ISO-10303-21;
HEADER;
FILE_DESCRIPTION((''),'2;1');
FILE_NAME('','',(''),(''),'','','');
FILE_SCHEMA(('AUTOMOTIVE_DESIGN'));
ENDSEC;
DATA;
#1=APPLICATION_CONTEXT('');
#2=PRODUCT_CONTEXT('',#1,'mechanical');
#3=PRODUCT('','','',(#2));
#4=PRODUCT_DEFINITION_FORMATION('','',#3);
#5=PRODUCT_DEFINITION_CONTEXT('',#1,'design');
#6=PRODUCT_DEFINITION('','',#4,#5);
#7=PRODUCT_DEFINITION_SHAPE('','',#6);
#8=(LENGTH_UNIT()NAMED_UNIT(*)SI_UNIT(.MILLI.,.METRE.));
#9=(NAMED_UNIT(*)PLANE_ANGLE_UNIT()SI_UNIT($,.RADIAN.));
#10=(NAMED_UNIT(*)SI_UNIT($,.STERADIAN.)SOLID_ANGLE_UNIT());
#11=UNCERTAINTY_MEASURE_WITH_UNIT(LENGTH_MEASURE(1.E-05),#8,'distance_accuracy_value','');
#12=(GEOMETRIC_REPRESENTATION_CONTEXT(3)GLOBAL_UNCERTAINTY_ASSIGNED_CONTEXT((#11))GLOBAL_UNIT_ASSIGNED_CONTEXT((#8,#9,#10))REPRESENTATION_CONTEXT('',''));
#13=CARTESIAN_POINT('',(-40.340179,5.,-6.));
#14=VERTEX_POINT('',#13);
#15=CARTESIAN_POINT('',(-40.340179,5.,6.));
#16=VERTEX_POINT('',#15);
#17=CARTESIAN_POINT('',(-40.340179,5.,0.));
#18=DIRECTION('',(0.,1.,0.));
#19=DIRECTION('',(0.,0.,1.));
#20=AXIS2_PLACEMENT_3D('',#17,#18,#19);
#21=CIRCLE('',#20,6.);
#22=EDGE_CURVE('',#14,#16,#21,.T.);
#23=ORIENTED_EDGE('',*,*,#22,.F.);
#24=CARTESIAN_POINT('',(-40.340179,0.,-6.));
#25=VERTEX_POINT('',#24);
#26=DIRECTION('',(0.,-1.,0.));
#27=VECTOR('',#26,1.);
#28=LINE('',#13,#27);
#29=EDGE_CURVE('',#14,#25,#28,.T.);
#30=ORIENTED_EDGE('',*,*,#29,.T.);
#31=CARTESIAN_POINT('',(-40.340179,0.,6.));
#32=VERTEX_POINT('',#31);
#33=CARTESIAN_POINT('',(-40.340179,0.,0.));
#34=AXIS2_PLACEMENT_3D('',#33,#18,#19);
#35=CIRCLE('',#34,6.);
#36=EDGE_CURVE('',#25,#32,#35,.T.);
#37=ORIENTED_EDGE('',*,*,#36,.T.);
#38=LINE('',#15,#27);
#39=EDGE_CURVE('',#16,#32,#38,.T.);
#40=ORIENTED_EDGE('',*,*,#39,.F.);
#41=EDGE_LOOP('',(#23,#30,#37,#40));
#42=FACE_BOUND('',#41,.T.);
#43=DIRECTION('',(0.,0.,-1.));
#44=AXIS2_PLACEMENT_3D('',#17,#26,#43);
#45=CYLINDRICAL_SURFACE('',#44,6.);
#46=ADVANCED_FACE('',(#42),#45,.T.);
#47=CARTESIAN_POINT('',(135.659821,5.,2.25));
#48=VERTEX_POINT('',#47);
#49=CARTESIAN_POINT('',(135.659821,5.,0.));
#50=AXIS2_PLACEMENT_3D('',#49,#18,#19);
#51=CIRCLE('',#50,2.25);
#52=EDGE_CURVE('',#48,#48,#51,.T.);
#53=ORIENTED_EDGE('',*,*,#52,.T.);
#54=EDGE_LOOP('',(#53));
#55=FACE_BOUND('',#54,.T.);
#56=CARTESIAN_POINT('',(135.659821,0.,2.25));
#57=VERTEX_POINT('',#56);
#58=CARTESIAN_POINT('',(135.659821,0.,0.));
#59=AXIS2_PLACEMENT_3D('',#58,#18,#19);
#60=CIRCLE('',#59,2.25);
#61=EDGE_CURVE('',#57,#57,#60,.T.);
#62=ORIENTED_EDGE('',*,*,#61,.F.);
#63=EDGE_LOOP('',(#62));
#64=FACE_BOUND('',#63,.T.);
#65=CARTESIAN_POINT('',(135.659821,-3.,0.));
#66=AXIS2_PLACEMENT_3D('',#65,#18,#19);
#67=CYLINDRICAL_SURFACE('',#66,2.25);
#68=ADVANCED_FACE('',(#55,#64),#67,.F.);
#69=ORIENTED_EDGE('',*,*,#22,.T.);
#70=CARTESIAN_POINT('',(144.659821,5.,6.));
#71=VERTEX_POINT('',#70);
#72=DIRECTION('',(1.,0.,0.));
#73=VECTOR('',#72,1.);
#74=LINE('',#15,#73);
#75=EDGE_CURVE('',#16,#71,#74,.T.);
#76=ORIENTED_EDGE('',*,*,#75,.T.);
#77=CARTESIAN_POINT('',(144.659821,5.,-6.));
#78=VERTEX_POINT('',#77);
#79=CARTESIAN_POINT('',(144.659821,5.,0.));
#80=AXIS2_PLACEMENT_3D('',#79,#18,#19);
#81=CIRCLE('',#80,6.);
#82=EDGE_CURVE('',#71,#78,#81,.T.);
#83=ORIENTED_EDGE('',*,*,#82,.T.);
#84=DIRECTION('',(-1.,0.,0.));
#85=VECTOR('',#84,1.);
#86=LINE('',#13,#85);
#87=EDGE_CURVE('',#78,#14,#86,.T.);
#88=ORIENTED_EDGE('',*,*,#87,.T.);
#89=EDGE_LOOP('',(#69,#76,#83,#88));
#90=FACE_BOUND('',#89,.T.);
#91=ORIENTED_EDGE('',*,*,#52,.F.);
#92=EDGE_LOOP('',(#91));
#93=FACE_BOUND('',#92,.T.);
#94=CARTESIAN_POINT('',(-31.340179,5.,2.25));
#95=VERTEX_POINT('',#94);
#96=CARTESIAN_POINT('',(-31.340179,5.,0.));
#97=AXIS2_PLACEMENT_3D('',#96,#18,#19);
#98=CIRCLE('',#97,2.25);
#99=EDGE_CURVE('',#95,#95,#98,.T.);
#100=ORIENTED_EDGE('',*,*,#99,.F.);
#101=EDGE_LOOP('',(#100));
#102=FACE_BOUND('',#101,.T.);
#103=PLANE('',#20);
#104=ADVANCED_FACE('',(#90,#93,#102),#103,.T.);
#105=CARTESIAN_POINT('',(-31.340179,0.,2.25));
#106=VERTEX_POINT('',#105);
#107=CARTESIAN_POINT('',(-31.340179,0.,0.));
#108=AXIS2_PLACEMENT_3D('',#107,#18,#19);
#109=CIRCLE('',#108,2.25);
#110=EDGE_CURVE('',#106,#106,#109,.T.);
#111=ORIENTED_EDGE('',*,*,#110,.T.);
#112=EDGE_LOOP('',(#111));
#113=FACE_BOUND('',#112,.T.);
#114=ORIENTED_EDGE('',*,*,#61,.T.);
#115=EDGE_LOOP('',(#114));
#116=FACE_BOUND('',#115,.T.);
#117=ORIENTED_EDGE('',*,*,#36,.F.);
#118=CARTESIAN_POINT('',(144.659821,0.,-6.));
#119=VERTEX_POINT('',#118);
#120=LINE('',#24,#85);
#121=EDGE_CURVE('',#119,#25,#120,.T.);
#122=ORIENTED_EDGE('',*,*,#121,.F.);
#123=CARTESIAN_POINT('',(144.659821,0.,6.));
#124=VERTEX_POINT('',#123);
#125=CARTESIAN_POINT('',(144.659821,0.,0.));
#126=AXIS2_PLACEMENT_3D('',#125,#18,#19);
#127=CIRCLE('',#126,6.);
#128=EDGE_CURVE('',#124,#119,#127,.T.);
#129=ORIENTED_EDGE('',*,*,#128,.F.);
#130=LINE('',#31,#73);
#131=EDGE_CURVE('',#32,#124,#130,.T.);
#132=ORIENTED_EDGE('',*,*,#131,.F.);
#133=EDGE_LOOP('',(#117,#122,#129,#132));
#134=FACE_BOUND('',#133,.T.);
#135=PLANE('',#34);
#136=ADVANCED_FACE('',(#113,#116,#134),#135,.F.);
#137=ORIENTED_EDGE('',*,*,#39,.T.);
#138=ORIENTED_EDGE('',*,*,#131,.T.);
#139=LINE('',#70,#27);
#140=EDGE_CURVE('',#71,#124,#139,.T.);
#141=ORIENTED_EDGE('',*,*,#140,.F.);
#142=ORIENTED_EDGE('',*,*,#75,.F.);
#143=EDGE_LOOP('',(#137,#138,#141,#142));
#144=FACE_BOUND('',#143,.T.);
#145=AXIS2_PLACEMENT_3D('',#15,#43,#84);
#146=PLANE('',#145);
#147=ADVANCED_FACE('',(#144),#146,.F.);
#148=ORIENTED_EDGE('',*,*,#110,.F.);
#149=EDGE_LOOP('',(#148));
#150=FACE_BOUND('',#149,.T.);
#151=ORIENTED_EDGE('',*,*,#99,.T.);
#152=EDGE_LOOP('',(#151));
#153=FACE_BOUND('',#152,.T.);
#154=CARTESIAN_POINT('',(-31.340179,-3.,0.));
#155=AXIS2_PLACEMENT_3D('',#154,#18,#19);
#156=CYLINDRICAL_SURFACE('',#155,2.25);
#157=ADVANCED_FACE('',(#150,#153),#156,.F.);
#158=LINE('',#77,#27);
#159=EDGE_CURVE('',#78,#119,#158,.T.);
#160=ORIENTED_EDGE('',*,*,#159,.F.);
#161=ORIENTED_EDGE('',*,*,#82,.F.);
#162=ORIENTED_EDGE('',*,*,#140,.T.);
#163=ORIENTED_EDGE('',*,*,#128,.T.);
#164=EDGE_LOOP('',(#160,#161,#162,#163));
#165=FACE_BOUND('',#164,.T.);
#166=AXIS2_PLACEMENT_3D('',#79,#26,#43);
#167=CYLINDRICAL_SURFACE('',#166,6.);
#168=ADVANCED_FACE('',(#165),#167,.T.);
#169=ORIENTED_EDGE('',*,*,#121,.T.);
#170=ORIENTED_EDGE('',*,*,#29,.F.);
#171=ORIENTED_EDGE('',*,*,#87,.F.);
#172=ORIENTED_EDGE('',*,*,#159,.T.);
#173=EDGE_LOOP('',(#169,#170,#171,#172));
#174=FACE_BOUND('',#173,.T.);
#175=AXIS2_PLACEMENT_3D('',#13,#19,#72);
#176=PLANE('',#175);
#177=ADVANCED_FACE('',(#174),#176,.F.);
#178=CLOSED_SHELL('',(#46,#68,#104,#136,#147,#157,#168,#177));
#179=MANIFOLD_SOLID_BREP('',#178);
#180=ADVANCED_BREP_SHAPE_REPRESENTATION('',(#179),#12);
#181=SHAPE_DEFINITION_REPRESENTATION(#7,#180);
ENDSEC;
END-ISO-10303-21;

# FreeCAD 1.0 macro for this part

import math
import FreeCAD as App
import Part
import Sketcher

V = App.Vector
Q = App.Units.Quantity

doc = App.newDocument("Part")
params = doc.addObject("Spreadsheet::Sheet", "Params")
for row, (alias, value) in enumerate([
    ("sketch1_radius", "6 mm"),
    ("sketch1_width", "185 mm"),
    ("pad1_length", "5 mm"),
    ("sketch2_diameter", "4.5 mm"),
    ("pocket1_length", "8 mm"),
], start=1):
    params.set(f"A{row}", alias)
    params.set(f"B{row}", "=" + value)
    params.setAlias(f"B{row}", alias)

body = doc.addObject("PartDesign::Body", "Body")

# Sketch on XZ plane
sketch1 = body.newObject("Sketcher::SketchObject", "Sketch")
sketch1.AttachmentSupport = (doc.getObject("XZ_Plane"), [""])
sketch1.MapMode = "FlatFace"
sketch1.addGeometry([
    Part.LineSegment(V(145, -6, 0), V(-40, -6, 0)),
    Part.ArcOfCircle(Part.Circle(V(-40, 0, 0), V(0, 0, 1), 6), math.radians(90), math.radians(270)),
    Part.LineSegment(V(-40, 6, 0), V(145, 6, 0)),
    Part.ArcOfCircle(Part.Circle(V(145, 0, 0), V(0, 0, 1), 6), math.radians(-90), math.radians(90)),
], False)
sketch1.addConstraint([
    Sketcher.Constraint("Tangent", 0, 2, 1, 2),
    Sketcher.Constraint("Tangent", 1, 1, 2, 1),
    Sketcher.Constraint("Tangent", 2, 2, 3, 2),
    Sketcher.Constraint("Tangent", 3, 1, 0, 1),
    Sketcher.Constraint("Horizontal", 0),
    Sketcher.Constraint("Horizontal", 2),
    Sketcher.Constraint("PointOnObject", 1, 3, -1),
    Sketcher.Constraint("Radius", 1, Q("6 mm")),
    Sketcher.Constraint("DistanceX", 0, 2, 0, 1, Q("185 mm")),
    Sketcher.Constraint("DistanceX", 1, 3, -1, 1, Q("40.340179 mm")),
])
sketch1.setExpression("Constraints[7]", "Params.sketch1_radius")
sketch1.setExpression("Constraints[8]", "Params.sketch1_width")
pad1 = body.newObject("PartDesign::Pad", "Pad")
pad1.Profile = sketch1
pad1.setExpression("Length", "Params.pad1_length")
pad1.Reversed = True

# Sketch on XZ plane
sketch2 = body.newObject("Sketcher::SketchObject", "Sketch001")
sketch2.AttachmentSupport = (doc.getObject("XZ_Plane"), [""])
sketch2.MapMode = "FlatFace"
sketch2.AttachmentOffset = App.Placement(V(0, 0, -5), App.Rotation())
sketch2.addGeometry([
    Part.Circle(V(-31.3, 0, 0), V(0, 0, 1), 2.2),
    Part.Circle(V(135.7, 0, 0), V(0, 0, 1), 2.2),
], False)
sketch2.addConstraint([
    Sketcher.Constraint("Equal", 0, 1),
    Sketcher.Constraint("PointOnObject", 0, 3, -1),
    Sketcher.Constraint("PointOnObject", 1, 3, -1),
    Sketcher.Constraint("Diameter", 0, Q("4.5 mm")),
    Sketcher.Constraint("DistanceX", 0, 3, 1, 3, Q("167 mm")),
    Sketcher.Constraint("DistanceX", 0, 3, -1, 1, Q("31.340179 mm")),
])
sketch2.setExpression("Constraints[3]", "Params.sketch2_diameter")
pocket1 = body.newObject("PartDesign::Pocket", "Pocket")
pocket1.Profile = sketch2
pocket1.setExpression("Length", "Params.pocket1_length")
pocket1.Reversed = True

doc.recompute()
